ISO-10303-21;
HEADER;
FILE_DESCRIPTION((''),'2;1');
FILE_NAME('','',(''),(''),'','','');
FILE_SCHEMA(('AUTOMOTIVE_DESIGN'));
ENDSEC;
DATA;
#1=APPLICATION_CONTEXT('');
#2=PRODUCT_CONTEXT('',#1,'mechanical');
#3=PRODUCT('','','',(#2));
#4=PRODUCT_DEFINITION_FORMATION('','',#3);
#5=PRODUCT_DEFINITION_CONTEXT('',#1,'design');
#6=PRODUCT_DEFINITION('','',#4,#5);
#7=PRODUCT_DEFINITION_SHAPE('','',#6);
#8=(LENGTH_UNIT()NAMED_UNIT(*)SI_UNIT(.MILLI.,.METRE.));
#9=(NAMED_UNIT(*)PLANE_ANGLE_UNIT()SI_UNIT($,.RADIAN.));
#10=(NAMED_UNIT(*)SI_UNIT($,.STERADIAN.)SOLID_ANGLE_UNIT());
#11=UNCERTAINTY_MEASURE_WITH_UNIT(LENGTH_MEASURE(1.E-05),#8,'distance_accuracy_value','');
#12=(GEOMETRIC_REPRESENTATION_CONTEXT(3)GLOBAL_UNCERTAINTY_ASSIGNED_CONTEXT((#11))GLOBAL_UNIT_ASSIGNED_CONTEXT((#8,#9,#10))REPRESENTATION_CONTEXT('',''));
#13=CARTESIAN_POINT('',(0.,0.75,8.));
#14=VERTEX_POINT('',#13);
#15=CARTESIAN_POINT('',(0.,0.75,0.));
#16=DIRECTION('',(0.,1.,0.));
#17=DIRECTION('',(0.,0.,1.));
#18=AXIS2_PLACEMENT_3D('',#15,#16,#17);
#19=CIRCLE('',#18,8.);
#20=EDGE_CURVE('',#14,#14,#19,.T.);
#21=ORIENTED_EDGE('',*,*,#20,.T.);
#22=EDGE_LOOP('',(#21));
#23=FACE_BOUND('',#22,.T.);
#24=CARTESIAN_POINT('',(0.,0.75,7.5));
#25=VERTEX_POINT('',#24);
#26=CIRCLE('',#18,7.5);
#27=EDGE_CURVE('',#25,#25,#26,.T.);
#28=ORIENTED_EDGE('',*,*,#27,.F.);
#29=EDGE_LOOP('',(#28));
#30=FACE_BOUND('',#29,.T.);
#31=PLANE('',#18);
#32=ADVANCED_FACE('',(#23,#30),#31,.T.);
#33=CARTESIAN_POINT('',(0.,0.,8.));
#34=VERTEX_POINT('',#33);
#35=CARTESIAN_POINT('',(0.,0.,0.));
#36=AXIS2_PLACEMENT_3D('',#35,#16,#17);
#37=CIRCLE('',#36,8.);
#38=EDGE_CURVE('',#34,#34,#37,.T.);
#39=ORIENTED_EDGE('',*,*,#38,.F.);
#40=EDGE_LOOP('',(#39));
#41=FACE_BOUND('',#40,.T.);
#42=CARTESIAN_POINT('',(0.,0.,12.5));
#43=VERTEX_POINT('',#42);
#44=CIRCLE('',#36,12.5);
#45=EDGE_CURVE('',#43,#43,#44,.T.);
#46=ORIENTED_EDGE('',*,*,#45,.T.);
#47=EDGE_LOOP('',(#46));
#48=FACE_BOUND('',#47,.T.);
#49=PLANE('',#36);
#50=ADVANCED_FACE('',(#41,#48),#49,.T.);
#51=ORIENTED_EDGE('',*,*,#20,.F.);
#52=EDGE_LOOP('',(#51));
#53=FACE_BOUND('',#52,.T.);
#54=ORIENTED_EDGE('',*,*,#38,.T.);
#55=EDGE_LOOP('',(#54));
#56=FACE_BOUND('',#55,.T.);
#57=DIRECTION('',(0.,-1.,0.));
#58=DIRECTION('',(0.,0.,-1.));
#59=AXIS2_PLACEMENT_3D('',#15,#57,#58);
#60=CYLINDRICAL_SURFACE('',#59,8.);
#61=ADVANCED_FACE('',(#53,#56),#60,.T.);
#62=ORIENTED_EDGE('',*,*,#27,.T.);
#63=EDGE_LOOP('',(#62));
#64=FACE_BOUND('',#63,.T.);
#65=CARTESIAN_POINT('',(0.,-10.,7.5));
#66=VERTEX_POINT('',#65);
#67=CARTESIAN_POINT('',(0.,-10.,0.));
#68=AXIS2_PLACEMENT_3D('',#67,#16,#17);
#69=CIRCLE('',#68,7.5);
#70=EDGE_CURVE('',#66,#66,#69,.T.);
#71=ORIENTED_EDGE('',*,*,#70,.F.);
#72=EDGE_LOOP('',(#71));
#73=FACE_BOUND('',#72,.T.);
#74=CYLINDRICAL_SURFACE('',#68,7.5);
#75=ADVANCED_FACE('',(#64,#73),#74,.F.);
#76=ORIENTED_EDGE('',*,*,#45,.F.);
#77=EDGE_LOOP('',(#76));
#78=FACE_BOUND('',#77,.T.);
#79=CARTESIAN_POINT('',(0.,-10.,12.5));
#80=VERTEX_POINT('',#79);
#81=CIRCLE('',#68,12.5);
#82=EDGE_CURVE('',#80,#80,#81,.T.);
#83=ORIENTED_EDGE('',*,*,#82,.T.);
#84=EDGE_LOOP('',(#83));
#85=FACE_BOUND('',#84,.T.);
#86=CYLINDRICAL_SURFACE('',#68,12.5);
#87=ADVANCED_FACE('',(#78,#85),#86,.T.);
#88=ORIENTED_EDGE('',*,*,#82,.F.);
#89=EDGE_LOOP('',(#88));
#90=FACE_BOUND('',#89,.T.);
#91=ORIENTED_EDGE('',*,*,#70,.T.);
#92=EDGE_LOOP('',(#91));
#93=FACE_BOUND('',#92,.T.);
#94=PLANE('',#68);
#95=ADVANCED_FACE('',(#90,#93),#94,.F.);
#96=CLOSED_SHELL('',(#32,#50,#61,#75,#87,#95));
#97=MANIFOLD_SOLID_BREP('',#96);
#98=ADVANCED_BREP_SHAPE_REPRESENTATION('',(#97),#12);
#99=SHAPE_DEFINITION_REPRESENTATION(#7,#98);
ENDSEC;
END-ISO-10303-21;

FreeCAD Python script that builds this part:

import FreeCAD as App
import Part
import Sketcher
from FreeCAD import Vector

doc = App.newDocument("Part")
body = doc.addObject("PartDesign::Body", "Body")

# Sketch on XZ plane
sketch1 = body.newObject("Sketcher::SketchObject", "Sketch")
sketch1.AttachmentSupport = (doc.getObject("XZ_Plane"), [""])
sketch1.MapMode = "FlatFace"
sketch1.addGeometry([
    Part.Circle(Vector(0, 0, 0), Vector(0, 0, 1), 12.5),
    Part.Circle(Vector(0, 0, 0), Vector(0, 0, 1), 7.5),
], False)
sketch1.addConstraint([
    Sketcher.Constraint("Coincident", 0, 3, -1, 1),
    Sketcher.Constraint("Coincident", 1, 3, -1, 1),
    Sketcher.Constraint("Diameter", 0, 25.0),
    Sketcher.Constraint("Diameter", 1, 15.0),
])
pad1 = body.newObject("PartDesign::Pad", "Pad")
pad1.Profile = sketch1
pad1.Length = 10

# Sketch on XZ plane
sketch2 = body.newObject("Sketcher::SketchObject", "Sketch001")
sketch2.AttachmentSupport = (doc.getObject("XZ_Plane"), [""])
sketch2.MapMode = "FlatFace"
sketch2.AttachmentOffset = App.Placement(Vector(0, 0, -0.75), App.Rotation())
sketch2.addGeometry([
    Part.Circle(Vector(0, 0, 0), Vector(0, 0, 1), 8),
    Part.Circle(Vector(0, 0, 0), Vector(0, 0, 1), 7.5),
], False)
sketch2.addConstraint([
    Sketcher.Constraint("Coincident", 0, 3, -1, 1),
    Sketcher.Constraint("Coincident", 1, 3, -1, 1),
    Sketcher.Constraint("Diameter", 0, 16.0),
    Sketcher.Constraint("Diameter", 1, 15.0),
])
pad2 = body.newObject("PartDesign::Pad", "Pad001")
pad2.Profile = sketch2
pad2.Length = 0.75

doc.recompute()
